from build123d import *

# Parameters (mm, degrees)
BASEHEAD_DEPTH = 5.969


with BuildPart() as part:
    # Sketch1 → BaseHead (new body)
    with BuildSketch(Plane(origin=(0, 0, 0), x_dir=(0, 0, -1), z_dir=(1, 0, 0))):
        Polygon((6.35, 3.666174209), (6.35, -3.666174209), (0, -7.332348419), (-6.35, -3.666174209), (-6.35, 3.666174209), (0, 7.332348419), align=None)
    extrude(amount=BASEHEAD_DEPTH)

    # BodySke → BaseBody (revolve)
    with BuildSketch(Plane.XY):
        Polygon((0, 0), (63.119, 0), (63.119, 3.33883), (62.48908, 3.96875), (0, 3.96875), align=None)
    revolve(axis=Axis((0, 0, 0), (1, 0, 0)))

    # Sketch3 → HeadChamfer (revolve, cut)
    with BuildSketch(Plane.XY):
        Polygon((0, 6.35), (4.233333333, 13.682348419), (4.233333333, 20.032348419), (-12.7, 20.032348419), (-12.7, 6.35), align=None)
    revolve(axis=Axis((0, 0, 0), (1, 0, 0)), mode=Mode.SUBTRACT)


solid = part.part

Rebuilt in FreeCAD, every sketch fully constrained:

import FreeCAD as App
import Part
import Sketcher
from FreeCAD import Vector
Q = App.Units.Quantity

doc = App.newDocument("Part")
body = doc.addObject("PartDesign::Body", "Body")

sketch1 = body.newObject("Sketcher::SketchObject", "Sketch")
sketch1.AttachmentSupport = (doc.getObject("YZ_Plane"), [""])
sketch1.MapMode = "FlatFace"
sketch1.addGeometry([
    Part.LineSegment(Vector(-3.666174, -6.35, 0), Vector(3.666174, -6.35, 0)),
    Part.LineSegment(Vector(3.666174, -6.35, 0), Vector(7.332348, 0, 0)),
    Part.LineSegment(Vector(7.332348, 0, 0), Vector(3.666174, 6.35, 0)),
    Part.LineSegment(Vector(3.666174, 6.35, 0), Vector(-3.666174, 6.35, 0)),
    Part.LineSegment(Vector(-3.666174, 6.35, 0), Vector(-7.332348, 0, 0)),
    Part.LineSegment(Vector(-7.332348, 0, 0), Vector(-3.666174, -6.35, 0)),
], False)
sketch1.addConstraint([
    Sketcher.Constraint("Coincident", 0, 2, 1, 1),
    Sketcher.Constraint("Coincident", 1, 2, 2, 1),
    Sketcher.Constraint("Coincident", 2, 2, 3, 1),
    Sketcher.Constraint("Coincident", 3, 2, 4, 1),
    Sketcher.Constraint("Coincident", 4, 2, 5, 1),
    Sketcher.Constraint("Coincident", 5, 2, 0, 1),
    Sketcher.Constraint("Horizontal", 0),
    Sketcher.Constraint("Horizontal", 3),
    Sketcher.Constraint("Symmetric", 0, 2, 3, 2, -1, 1),
    Sketcher.Constraint("Symmetric", 1, 2, 4, 2, -1, 1),
    Sketcher.Constraint("PointOnObject", 1, 2, -1),
    Sketcher.Constraint("Parallel", 2, 5),
    Sketcher.Constraint("Vertical", 0, 2, 2, 2),
    Sketcher.Constraint("Angle", 1, Q("60 deg")),
    Sketcher.Constraint("DistanceY", 0, 2, 2, 2, Q("0.5 in")),
    Sketcher.Constraint("DistanceX", 0, 1, 0, 2, 7.332348),
])
pad1 = body.newObject("PartDesign::Pad", "Pad")
pad1.Profile = sketch1
pad1.Length = Q("0.235 in")

sketch2 = body.newObject("Sketcher::SketchObject", "Sketch001")
sketch2.AttachmentSupport = (doc.getObject("XY_Plane"), [""])
sketch2.MapMode = "FlatFace"
sketch2.addGeometry([
    Part.LineSegment(Vector(0, 0, 0), Vector(63.119, 0, 0)),
    Part.LineSegment(Vector(63.119, 0, 0), Vector(63.119, 3.33883, 0)),
    Part.LineSegment(Vector(63.119, 3.33883, 0), Vector(62.48908, 3.96875, 0)),
    Part.LineSegment(Vector(62.48908, 3.96875, 0), Vector(0, 3.96875, 0)),
    Part.LineSegment(Vector(0, 3.96875, 0), Vector(0, 0, 0)),
], False)
sketch2.addConstraint([
    Sketcher.Constraint("Coincident", 0, 2, 1, 1),
    Sketcher.Constraint("Coincident", 1, 2, 2, 1),
    Sketcher.Constraint("Coincident", 2, 2, 3, 1),
    Sketcher.Constraint("Coincident", 3, 2, 4, 1),
    Sketcher.Constraint("Coincident", 4, 2, 0, 1),
    Sketcher.Constraint("Horizontal", 0),
    Sketcher.Constraint("Vertical", 1),
    Sketcher.Constraint("Horizontal", 3),
    Sketcher.Constraint("Vertical", 4),
    Sketcher.Constraint("Coincident", 4, 2, -1, 1),
    Sketcher.Constraint("Angle", 2, Q("135 deg")),
    Sketcher.Constraint("DistanceX", 0, 1, 0, 2, Q("2.485 in")),
    Sketcher.Constraint("DistanceY", 4, 2, 4, 1, Q("0.15625 in")),
    Sketcher.Constraint("DistanceX", 3, 2, 3, 1, Q("2.4602 in")),
])
revolution = body.newObject("PartDesign::Revolution", "Revolution")
revolution.Profile = sketch2
revolution.ReferenceAxis = (sketch2, ["H_Axis"])
revolution.Angle = 360

sketch3 = body.newObject("Sketcher::SketchObject", "Sketch002")
sketch3.AttachmentSupport = (doc.getObject("XY_Plane"), [""])
sketch3.MapMode = "FlatFace"
sketch3.addGeometry([
    Part.LineSegment(Vector(0, 6.35, 0), Vector(4.233333, 13.682348, 0)),
    Part.LineSegment(Vector(4.233333, 13.682348, 0), Vector(4.233333, 20.032348, 0)),
    Part.LineSegment(Vector(4.233333, 20.032348, 0), Vector(-12.7, 20.032348, 0)),
    Part.LineSegment(Vector(-12.7, 20.032348, 0), Vector(-12.7, 6.35, 0)),
    Part.LineSegment(Vector(-12.7, 6.35, 0), Vector(0, 6.35, 0)),
], False)
sketch3.addConstraint([
    Sketcher.Constraint("Coincident", 0, 2, 1, 1),
    Sketcher.Constraint("Coincident", 1, 2, 2, 1),
    Sketcher.Constraint("Coincident", 2, 2, 3, 1),
    Sketcher.Constraint("Coincident", 3, 2, 4, 1),
    Sketcher.Constraint("Coincident", 4, 2, 0, 1),
    Sketcher.Constraint("Vertical", 1),
    Sketcher.Constraint("Horizontal", 2),
    Sketcher.Constraint("Vertical", 3),
    Sketcher.Constraint("Horizontal", 4),
    Sketcher.Constraint("PointOnObject", 4, 2, -2),
    Sketcher.Constraint("DistanceX", 4, 1, 4, 2, Q("0.5 in")),
    Sketcher.Constraint("Angle", 0, Q("60 deg")),
    Sketcher.Constraint("DistanceY", 1, 1, 1, 2, Q("0.25 in")),
    Sketcher.Constraint("DistanceY", -1, 1, 3, 2, Q("0.25 in")),
    Sketcher.Constraint("DistanceY", 3, 2, 3, 1, 13.682348),
])
groove = body.newObject("PartDesign::Groove", "Groove")
groove.Profile = sketch3
groove.ReferenceAxis = (sketch3, ["H_Axis"])
groove.Angle = 360

doc.recompute()
